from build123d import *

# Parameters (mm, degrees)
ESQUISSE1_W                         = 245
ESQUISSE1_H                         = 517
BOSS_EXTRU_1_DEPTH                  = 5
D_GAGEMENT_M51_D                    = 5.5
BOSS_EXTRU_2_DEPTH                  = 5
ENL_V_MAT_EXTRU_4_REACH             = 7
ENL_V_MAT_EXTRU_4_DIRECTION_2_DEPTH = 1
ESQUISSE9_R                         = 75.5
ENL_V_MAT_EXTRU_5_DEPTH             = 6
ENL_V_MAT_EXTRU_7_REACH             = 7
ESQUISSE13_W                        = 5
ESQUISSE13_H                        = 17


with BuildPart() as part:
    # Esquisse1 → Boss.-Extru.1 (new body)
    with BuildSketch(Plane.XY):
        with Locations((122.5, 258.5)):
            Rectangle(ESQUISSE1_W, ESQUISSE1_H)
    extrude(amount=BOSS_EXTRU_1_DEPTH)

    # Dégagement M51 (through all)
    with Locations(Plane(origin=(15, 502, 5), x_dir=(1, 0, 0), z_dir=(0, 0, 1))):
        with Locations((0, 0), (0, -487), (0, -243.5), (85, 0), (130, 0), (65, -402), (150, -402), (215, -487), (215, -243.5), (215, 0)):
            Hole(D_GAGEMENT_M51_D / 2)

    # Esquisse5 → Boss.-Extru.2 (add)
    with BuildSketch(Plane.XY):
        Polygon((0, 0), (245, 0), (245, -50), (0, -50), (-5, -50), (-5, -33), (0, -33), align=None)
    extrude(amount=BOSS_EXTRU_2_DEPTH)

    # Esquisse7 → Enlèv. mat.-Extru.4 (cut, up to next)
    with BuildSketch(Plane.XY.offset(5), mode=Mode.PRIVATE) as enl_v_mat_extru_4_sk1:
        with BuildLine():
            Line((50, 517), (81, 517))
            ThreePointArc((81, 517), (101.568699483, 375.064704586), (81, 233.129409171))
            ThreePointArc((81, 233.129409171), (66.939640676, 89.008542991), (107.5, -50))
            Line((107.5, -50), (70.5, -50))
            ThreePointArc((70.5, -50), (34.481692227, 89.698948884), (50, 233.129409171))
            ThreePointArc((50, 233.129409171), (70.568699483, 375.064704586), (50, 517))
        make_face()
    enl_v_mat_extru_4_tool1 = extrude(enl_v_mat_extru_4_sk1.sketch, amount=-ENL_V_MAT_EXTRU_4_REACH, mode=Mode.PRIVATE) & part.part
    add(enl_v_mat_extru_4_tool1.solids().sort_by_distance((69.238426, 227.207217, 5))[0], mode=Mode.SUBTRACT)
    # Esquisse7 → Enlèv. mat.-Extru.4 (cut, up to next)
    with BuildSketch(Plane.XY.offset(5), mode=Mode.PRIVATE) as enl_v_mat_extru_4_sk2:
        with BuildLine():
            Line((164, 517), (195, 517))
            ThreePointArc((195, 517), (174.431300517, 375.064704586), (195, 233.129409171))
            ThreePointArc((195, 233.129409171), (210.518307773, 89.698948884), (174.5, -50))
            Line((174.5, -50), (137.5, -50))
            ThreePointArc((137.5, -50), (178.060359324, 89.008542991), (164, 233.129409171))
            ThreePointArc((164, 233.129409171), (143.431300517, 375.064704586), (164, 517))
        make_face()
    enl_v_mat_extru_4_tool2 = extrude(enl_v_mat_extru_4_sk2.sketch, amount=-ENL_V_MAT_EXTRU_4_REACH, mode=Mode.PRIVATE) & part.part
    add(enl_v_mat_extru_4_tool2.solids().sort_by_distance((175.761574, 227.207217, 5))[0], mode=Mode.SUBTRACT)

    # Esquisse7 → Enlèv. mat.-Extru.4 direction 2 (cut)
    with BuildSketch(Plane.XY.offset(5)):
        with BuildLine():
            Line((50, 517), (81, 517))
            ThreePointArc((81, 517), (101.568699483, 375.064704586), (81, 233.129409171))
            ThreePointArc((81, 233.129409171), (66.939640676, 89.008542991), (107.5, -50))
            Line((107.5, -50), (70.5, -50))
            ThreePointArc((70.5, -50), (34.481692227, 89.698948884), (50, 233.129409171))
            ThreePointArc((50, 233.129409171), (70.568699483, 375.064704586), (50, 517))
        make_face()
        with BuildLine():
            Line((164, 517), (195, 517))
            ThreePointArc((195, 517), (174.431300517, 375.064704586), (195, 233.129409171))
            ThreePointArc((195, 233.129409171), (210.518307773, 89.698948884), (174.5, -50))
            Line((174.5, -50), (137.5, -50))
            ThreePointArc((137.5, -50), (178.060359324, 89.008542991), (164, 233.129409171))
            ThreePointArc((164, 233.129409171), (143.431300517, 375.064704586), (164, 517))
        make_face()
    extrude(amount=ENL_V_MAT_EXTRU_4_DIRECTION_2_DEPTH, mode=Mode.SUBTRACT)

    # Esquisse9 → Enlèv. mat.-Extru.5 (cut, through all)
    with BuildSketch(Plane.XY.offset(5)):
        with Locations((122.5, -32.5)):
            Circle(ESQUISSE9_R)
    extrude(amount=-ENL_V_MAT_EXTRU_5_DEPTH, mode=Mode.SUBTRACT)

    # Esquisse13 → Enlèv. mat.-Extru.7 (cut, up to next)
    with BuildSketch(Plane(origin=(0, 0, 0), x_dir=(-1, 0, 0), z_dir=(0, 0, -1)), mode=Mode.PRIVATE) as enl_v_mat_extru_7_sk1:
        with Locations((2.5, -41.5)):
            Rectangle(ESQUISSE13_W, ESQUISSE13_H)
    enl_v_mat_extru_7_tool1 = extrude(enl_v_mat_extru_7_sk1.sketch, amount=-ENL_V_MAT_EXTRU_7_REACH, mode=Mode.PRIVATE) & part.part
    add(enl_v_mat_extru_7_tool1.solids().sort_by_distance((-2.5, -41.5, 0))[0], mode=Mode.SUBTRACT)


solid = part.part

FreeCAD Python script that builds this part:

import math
import FreeCAD as App
import Part
import Sketcher


def add_polygon(sketch, points):
    """Adds a closed chain of lines whose ends are joined by coincident constraints."""
    first, n = sketch.GeometryCount, len(points)
    for a, b in zip(points, points[1:] + points[:1]):
        sketch.addGeometry(Part.LineSegment(App.Vector(*a, 0), App.Vector(*b, 0)), False)
    for i in range(n):
        sketch.addConstraint(Sketcher.Constraint("Coincident", first + i, 2, first + (i + 1) % n, 1))

doc = App.newDocument("Part")
body = doc.addObject("PartDesign::Body", "Body")
body.AllowCompound = True

# Sketch on XY plane
sketch1 = body.newObject("Sketcher::SketchObject", "Sketch")
sketch1.AttachmentSupport = (doc.getObject("XY_Plane"), [""])
sketch1.MapMode = "FlatFace"
add_polygon(sketch1, [(0, 517), (0, 0), (245, 0), (245, 517)])  # lines 0-3
sketch1.addConstraint(Sketcher.Constraint("Vertical", 0))
sketch1.addConstraint(Sketcher.Constraint("Horizontal", 1))
sketch1.addConstraint(Sketcher.Constraint("Vertical", 2))
sketch1.addConstraint(Sketcher.Constraint("Horizontal", 3))
sketch1.addConstraint(Sketcher.Constraint("Coincident", 0, 2, -1, 1))
sketch1.addConstraint(Sketcher.Constraint("DistanceX", 1, 1, 1, 2, 245.0))
sketch1.addConstraint(Sketcher.Constraint("DistanceY", 0, 2, 0, 1, 517.0))
pad1 = body.newObject("PartDesign::Pad", "Pad")
pad1.Profile = sketch1
pad1.Length = 5

# Sketch on XY plane
sketch2 = body.newObject("Sketcher::SketchObject", "Sketch001")
sketch2.AttachmentSupport = (doc.getObject("XY_Plane"), [""])
sketch2.MapMode = "FlatFace"
sketch2.AttachmentOffset = App.Placement(App.Vector(0, 0, 5), App.Rotation())
sketch2.addGeometry(Part.Circle(App.Vector(15, 502, 0), App.Vector(0, 0, 1), 2.8), False)
sketch2.addGeometry(Part.Circle(App.Vector(15, 15, 0), App.Vector(0, 0, 1), 2.8), False)
sketch2.addGeometry(Part.Circle(App.Vector(15, 258.5, 0), App.Vector(0, 0, 1), 2.8), False)
sketch2.addGeometry(Part.Circle(App.Vector(100, 502, 0), App.Vector(0, 0, 1), 2.8), False)
sketch2.addGeometry(Part.Circle(App.Vector(145, 502, 0), App.Vector(0, 0, 1), 2.8), False)
sketch2.addGeometry(Part.Circle(App.Vector(80, 100, 0), App.Vector(0, 0, 1), 2.8), False)
sketch2.addGeometry(Part.Circle(App.Vector(165, 100, 0), App.Vector(0, 0, 1), 2.8), False)
sketch2.addGeometry(Part.Circle(App.Vector(230, 15, 0), App.Vector(0, 0, 1), 2.8), False)
sketch2.addGeometry(Part.Circle(App.Vector(230, 258.5, 0), App.Vector(0, 0, 1), 2.8), False)
sketch2.addGeometry(Part.Circle(App.Vector(230, 502, 0), App.Vector(0, 0, 1), 2.8), False)
sketch2.addConstraint(Sketcher.Constraint("Equal", 0, 1))
sketch2.addConstraint(Sketcher.Constraint("Equal", 1, 2))
sketch2.addConstraint(Sketcher.Constraint("Equal", 2, 3))
sketch2.addConstraint(Sketcher.Constraint("Equal", 3, 4))
sketch2.addConstraint(Sketcher.Constraint("Equal", 4, 5))
sketch2.addConstraint(Sketcher.Constraint("Equal", 5, 6))
sketch2.addConstraint(Sketcher.Constraint("Equal", 6, 7))
sketch2.addConstraint(Sketcher.Constraint("Equal", 7, 8))
sketch2.addConstraint(Sketcher.Constraint("Equal", 8, 9))
sketch2.addConstraint(Sketcher.Constraint("Horizontal", 0, 3, 3, 3))
sketch2.addConstraint(Sketcher.Constraint("Horizontal", 3, 3, 4, 3))
sketch2.addConstraint(Sketcher.Constraint("Horizontal", 5, 3, 6, 3))
sketch2.addConstraint(Sketcher.Constraint("Horizontal", 1, 3, 7, 3))
sketch2.addConstraint(Sketcher.Constraint("Horizontal", 2, 3, 8, 3))
sketch2.addConstraint(Sketcher.Constraint("Horizontal", 4, 3, 9, 3))
sketch2.addConstraint(Sketcher.Constraint("Vertical", 0, 3, 1, 3))
sketch2.addConstraint(Sketcher.Constraint("Vertical", 1, 3, 2, 3))
sketch2.addConstraint(Sketcher.Constraint("Vertical", 7, 3, 8, 3))
sketch2.addConstraint(Sketcher.Constraint("Vertical", 8, 3, 9, 3))
sketch2.addConstraint(Sketcher.Constraint("Diameter", 0, 5.5))
sketch2.addConstraint(Sketcher.Constraint("DistanceX", -1, 1, 0, 3, 15.0))
sketch2.addConstraint(Sketcher.Constraint("DistanceY", -1, 1, 0, 3, 502.0))
sketch2.addConstraint(Sketcher.Constraint("DistanceY", -1, 1, 1, 3, 15.0))
sketch2.addConstraint(Sketcher.Constraint("DistanceX", -1, 1, 3, 3, 100.0))
sketch2.addConstraint(Sketcher.Constraint("DistanceX", -1, 1, 4, 3, 145.0))
sketch2.addConstraint(Sketcher.Constraint("DistanceX", -1, 1, 5, 3, 80.0))
sketch2.addConstraint(Sketcher.Constraint("DistanceY", -1, 1, 5, 3, 100.0))
sketch2.addConstraint(Sketcher.Constraint("DistanceX", -1, 1, 6, 3, 165.0))
sketch2.addConstraint(Sketcher.Constraint("DistanceX", -1, 1, 7, 3, 230.0))
sketch2.addConstraint(Sketcher.Constraint("DistanceY", -1, 1, 2, 3, 258.5))
doc.recompute()
hole = body.newObject("PartDesign::Hole", "Hole")
hole.Profile = sketch2
hole.ThreadType = "None"
hole.Diameter = 5.5
hole.DepthType = "ThroughAll"

# Sketch on XY plane
sketch3 = body.newObject("Sketcher::SketchObject", "Sketch002")
sketch3.AttachmentSupport = (doc.getObject("XY_Plane"), [""])
sketch3.MapMode = "FlatFace"
add_polygon(sketch3, [(245, 0), (0, 0), (0, -33), (-5, -33), (-5, -50), (245, -50)])  # lines 0-5
sketch3.addConstraint(Sketcher.Constraint("Horizontal", 0))
sketch3.addConstraint(Sketcher.Constraint("Vertical", 1))
sketch3.addConstraint(Sketcher.Constraint("Horizontal", 2))
sketch3.addConstraint(Sketcher.Constraint("Vertical", 3))
sketch3.addConstraint(Sketcher.Constraint("Horizontal", 4))
sketch3.addConstraint(Sketcher.Constraint("Vertical", 5))
sketch3.addConstraint(Sketcher.Constraint("Coincident", 0, 2, -1, 1))
sketch3.addConstraint(Sketcher.Constraint("DistanceX", 0, 2, 0, 1, 245.0))
sketch3.addConstraint(Sketcher.Constraint("DistanceX", 2, 2, 2, 1, 5.0))
sketch3.addConstraint(Sketcher.Constraint("DistanceY", 1, 2, 1, 1, 33.0))
sketch3.addConstraint(Sketcher.Constraint("DistanceY", 3, 2, 3, 1, 17.0))
pad2 = body.newObject("PartDesign::Pad", "Pad001")
pad2.Profile = sketch3
pad2.Length = 5

# Sketch on XY plane
sketch4 = body.newObject("Sketcher::SketchObject", "Sketch003")
sketch4.AttachmentSupport = (doc.getObject("XY_Plane"), [""])
sketch4.MapMode = "FlatFace"
sketch4.AttachmentOffset = App.Placement(App.Vector(0, 0, 5), App.Rotation())
sketch4.addGeometry(Part.LineSegment(App.Vector(81, 517, 0), App.Vector(50, 517, 0)), False)
sketch4.addGeometry(Part.ArcOfCircle(Part.Circle(App.Vector(-429, 375, 0), App.Vector(0, 0, 1), 500), math.radians(-16), math.radians(16)), False)
sketch4.addGeometry(Part.ArcOfCircle(Part.Circle(App.Vector(436, 119, 0), App.Vector(0, 0, 1), 403), math.radians(164), math.radians(205)), False)
sketch4.addGeometry(Part.LineSegment(App.Vector(70, -50, 0), App.Vector(108, -50, 0)), False)
sketch4.addGeometry(Part.ArcOfCircle(Part.Circle(App.Vector(447, 125, 0), App.Vector(0, 0, 1), 382), math.radians(164), math.radians(207)), False)
sketch4.addGeometry(Part.ArcOfCircle(Part.Circle(App.Vector(-398, 375, 0), App.Vector(0, 0, 1), 500), math.radians(-16), math.radians(16)), False)
sketch4.addConstraint(Sketcher.Constraint("Coincident", 0, 2, 1, 2))
sketch4.addConstraint(Sketcher.Constraint("Tangent", 1, 1, 2, 1))
sketch4.addConstraint(Sketcher.Constraint("Coincident", 2, 2, 3, 1))
sketch4.addConstraint(Sketcher.Constraint("Coincident", 3, 2, 4, 2))
sketch4.addConstraint(Sketcher.Constraint("Tangent", 4, 1, 5, 1))
sketch4.addConstraint(Sketcher.Constraint("Coincident", 5, 2, 0, 1))
sketch4.addConstraint(Sketcher.Constraint("Horizontal", 0))
sketch4.addConstraint(Sketcher.Constraint("Horizontal", 3))
sketch4.addConstraint(Sketcher.Constraint("Equal", 1, 5))
sketch4.addConstraint(Sketcher.Constraint("Horizontal", 1, 3, 5, 3))
sketch4.addConstraint(Sketcher.Constraint("Vertical", 0, 2, 1, 1))
sketch4.addConstraint(Sketcher.Constraint("Radius", 1, 500.0))
sketch4.addConstraint(Sketcher.Constraint("DistanceX", 0, 2, 0, 1, 31.0))
sketch4.addConstraint(Sketcher.Constraint("DistanceX", 3, 1, 3, 2, 37.0))
sketch4.addConstraint(Sketcher.Constraint("DistanceX", -1, 1, 0, 2, 50.0))
sketch4.addConstraint(Sketcher.Constraint("DistanceY", -1, 1, 0, 2, 517.0))
sketch4.addConstraint(Sketcher.Constraint("DistanceY", 3, 2, -1, 1, 50.0))
sketch4.addConstraint(Sketcher.Constraint("DistanceX", -1, 1, 2, 2, 70.5))
sketch4.addConstraint(Sketcher.Constraint("Radius", 4, 382.222562))
sketch4.addConstraint(Sketcher.Constraint("Radius", 2, 402.796572))
pocket1 = body.newObject("PartDesign::Pocket", "Pocket")
pocket1.Profile = sketch4
pocket1.Type = "UpToFirst"

# Sketch on XY plane
sketch5 = body.newObject("Sketcher::SketchObject", "Sketch004")
sketch5.AttachmentSupport = (doc.getObject("XY_Plane"), [""])
sketch5.MapMode = "FlatFace"
sketch5.AttachmentOffset = App.Placement(App.Vector(0, 0, 5), App.Rotation())
sketch5.addGeometry(Part.LineSegment(App.Vector(195, 517, 0), App.Vector(164, 517, 0)), False)
sketch5.addGeometry(Part.ArcOfCircle(Part.Circle(App.Vector(643, 375, 0), App.Vector(0, 0, 1), 500), math.radians(164), math.radians(196)), False)
sketch5.addGeometry(Part.ArcOfCircle(Part.Circle(App.Vector(-202, 125, 0), App.Vector(0, 0, 1), 382), math.radians(-27), math.radians(16)), False)
sketch5.addGeometry(Part.LineSegment(App.Vector(138, -50, 0), App.Vector(174, -50, 0)), False)
sketch5.addGeometry(Part.ArcOfCircle(Part.Circle(App.Vector(-191, 119, 0), App.Vector(0, 0, 1), 403), math.radians(-25), math.radians(16)), False)
sketch5.addGeometry(Part.ArcOfCircle(Part.Circle(App.Vector(674, 375, 0), App.Vector(0, 0, 1), 500), math.radians(164), math.radians(196)), False)
sketch5.addConstraint(Sketcher.Constraint("Coincident", 0, 2, 1, 1))
sketch5.addConstraint(Sketcher.Constraint("Tangent", 1, 2, 2, 2))
sketch5.addConstraint(Sketcher.Constraint("Coincident", 2, 1, 3, 1))
sketch5.addConstraint(Sketcher.Constraint("Coincident", 3, 2, 4, 1))
sketch5.addConstraint(Sketcher.Constraint("Tangent", 4, 2, 5, 2))
sketch5.addConstraint(Sketcher.Constraint("Coincident", 5, 1, 0, 1))
sketch5.addConstraint(Sketcher.Constraint("Horizontal", 0))
sketch5.addConstraint(Sketcher.Constraint("Horizontal", 3))
sketch5.addConstraint(Sketcher.Constraint("Equal", 1, 5))
sketch5.addConstraint(Sketcher.Constraint("Horizontal", 1, 3, 5, 3))
sketch5.addConstraint(Sketcher.Constraint("Vertical", 0, 2, 1, 2))
sketch5.addConstraint(Sketcher.Constraint("Radius", 1, 500.0))
sketch5.addConstraint(Sketcher.Constraint("DistanceX", 0, 2, 0, 1, 31.0))
sketch5.addConstraint(Sketcher.Constraint("DistanceX", 3, 1, 3, 2, 37.0))
sketch5.addConstraint(Sketcher.Constraint("DistanceX", -1, 1, 0, 2, 164.0))
sketch5.addConstraint(Sketcher.Constraint("DistanceY", -1, 1, 0, 2, 517.0))
sketch5.addConstraint(Sketcher.Constraint("DistanceY", 3, 2, -1, 1, 50.0))
sketch5.addConstraint(Sketcher.Constraint("DistanceX", -1, 1, 3, 2, 174.5))
sketch5.addConstraint(Sketcher.Constraint("Radius", 2, 382.222562))
sketch5.addConstraint(Sketcher.Constraint("Radius", 4, 402.796572))
pocket2 = body.newObject("PartDesign::Pocket", "Pocket001")
pocket2.Profile = sketch5
pocket2.Type = "UpToFirst"

# Sketch on XY plane
sketch6 = body.newObject("Sketcher::SketchObject", "Sketch005")
sketch6.AttachmentSupport = (doc.getObject("XY_Plane"), [""])
sketch6.MapMode = "FlatFace"
sketch6.AttachmentOffset = App.Placement(App.Vector(0, 0, 5), App.Rotation())
sketch6.addGeometry(Part.LineSegment(App.Vector(81, 517, 0), App.Vector(50, 517, 0)), False)
sketch6.addGeometry(Part.ArcOfCircle(Part.Circle(App.Vector(-429, 375, 0), App.Vector(0, 0, 1), 500), math.radians(-16), math.radians(16)), False)
sketch6.addGeometry(Part.ArcOfCircle(Part.Circle(App.Vector(436, 119, 0), App.Vector(0, 0, 1), 403), math.radians(164), math.radians(205)), False)
sketch6.addGeometry(Part.LineSegment(App.Vector(70, -50, 0), App.Vector(108, -50, 0)), False)
sketch6.addGeometry(Part.ArcOfCircle(Part.Circle(App.Vector(447, 125, 0), App.Vector(0, 0, 1), 382), math.radians(164), math.radians(207)), False)
sketch6.addGeometry(Part.ArcOfCircle(Part.Circle(App.Vector(-398, 375, 0), App.Vector(0, 0, 1), 500), math.radians(-16), math.radians(16)), False)
sketch6.addGeometry(Part.LineSegment(App.Vector(195, 517, 0), App.Vector(164, 517, 0)), False)
sketch6.addGeometry(Part.ArcOfCircle(Part.Circle(App.Vector(643, 375, 0), App.Vector(0, 0, 1), 500), math.radians(164), math.radians(196)), False)
sketch6.addGeometry(Part.ArcOfCircle(Part.Circle(App.Vector(-202, 125, 0), App.Vector(0, 0, 1), 382), math.radians(-27), math.radians(16)), False)
sketch6.addGeometry(Part.LineSegment(App.Vector(138, -50, 0), App.Vector(174, -50, 0)), False)
sketch6.addGeometry(Part.ArcOfCircle(Part.Circle(App.Vector(-191, 119, 0), App.Vector(0, 0, 1), 403), math.radians(-25), math.radians(16)), False)
sketch6.addGeometry(Part.ArcOfCircle(Part.Circle(App.Vector(674, 375, 0), App.Vector(0, 0, 1), 500), math.radians(164), math.radians(196)), False)
sketch6.addConstraint(Sketcher.Constraint("Coincident", 0, 2, 1, 2))
sketch6.addConstraint(Sketcher.Constraint("Tangent", 1, 1, 2, 1))
sketch6.addConstraint(Sketcher.Constraint("Coincident", 2, 2, 3, 1))
sketch6.addConstraint(Sketcher.Constraint("Coincident", 3, 2, 4, 2))
sketch6.addConstraint(Sketcher.Constraint("Tangent", 4, 1, 5, 1))
sketch6.addConstraint(Sketcher.Constraint("Coincident", 5, 2, 0, 1))
sketch6.addConstraint(Sketcher.Constraint("Coincident", 6, 2, 7, 1))
sketch6.addConstraint(Sketcher.Constraint("Tangent", 7, 2, 8, 2))
sketch6.addConstraint(Sketcher.Constraint("Coincident", 8, 1, 9, 1))
sketch6.addConstraint(Sketcher.Constraint("Coincident", 9, 2, 10, 1))
sketch6.addConstraint(Sketcher.Constraint("Tangent", 10, 2, 11, 2))
sketch6.addConstraint(Sketcher.Constraint("Coincident", 11, 1, 6, 1))
sketch6.addConstraint(Sketcher.Constraint("Horizontal", 0))
sketch6.addConstraint(Sketcher.Constraint("Horizontal", 3))
sketch6.addConstraint(Sketcher.Constraint("Horizontal", 6))
sketch6.addConstraint(Sketcher.Constraint("Horizontal", 9))
sketch6.addConstraint(Sketcher.Constraint("Equal", 1, 5))
sketch6.addConstraint(Sketcher.Constraint("Equal", 5, 7))
sketch6.addConstraint(Sketcher.Constraint("Equal", 4, 8))
sketch6.addConstraint(Sketcher.Constraint("Equal", 2, 10))
sketch6.addConstraint(Sketcher.Constraint("Equal", 7, 11))
sketch6.addConstraint(Sketcher.Constraint("Horizontal", 1, 3, 5, 3))
sketch6.addConstraint(Sketcher.Constraint("Horizontal", 5, 3, 7, 3))
sketch6.addConstraint(Sketcher.Constraint("Horizontal", 4, 3, 8, 3))
sketch6.addConstraint(Sketcher.Constraint("Horizontal", 2, 3, 10, 3))
sketch6.addConstraint(Sketcher.Constraint("Horizontal", 7, 3, 11, 3))
sketch6.addConstraint(Sketcher.Constraint("Horizontal", 5, 2, 6, 2))
sketch6.addConstraint(Sketcher.Constraint("Horizontal", 3, 2, 8, 1))
sketch6.addConstraint(Sketcher.Constraint("Equal", 0, 6))
sketch6.addConstraint(Sketcher.Constraint("Radius", 1, 500.0))
sketch6.addConstraint(Sketcher.Constraint("DistanceX", 0, 2, 0, 1, 31.0))
sketch6.addConstraint(Sketcher.Constraint("DistanceX", 3, 1, 3, 2, 37.0))
sketch6.addConstraint(Sketcher.Constraint("DistanceX", -1, 1, 0, 2, 50.0))
sketch6.addConstraint(Sketcher.Constraint("DistanceY", -1, 1, 0, 2, 517.0))
sketch6.addConstraint(Sketcher.Constraint("DistanceY", 3, 2, -1, 1, 50.0))
sketch6.addConstraint(Sketcher.Constraint("DistanceX", -1, 1, 6, 2, 164.0))
sketch6.addConstraint(Sketcher.Constraint("DistanceX", 3, 2, 8, 1, 30.0))
sketch6.addConstraint(Sketcher.Constraint("Radius", 4, 382.222562))
sketch6.addConstraint(Sketcher.Constraint("Radius", 2, 402.796572))
sketch6.addConstraint(Sketcher.Constraint("DistanceX", 1, 3, -1, 1, 429.431301))
pocket3 = body.newObject("PartDesign::Pocket", "Pocket002")
pocket3.Profile = sketch6
pocket3.Length = 1
pocket3.Reversed = True

# Sketch on XY plane
sketch7 = body.newObject("Sketcher::SketchObject", "Sketch006")
sketch7.AttachmentSupport = (doc.getObject("XY_Plane"), [""])
sketch7.MapMode = "FlatFace"
sketch7.AttachmentOffset = App.Placement(App.Vector(0, 0, 5), App.Rotation())
sketch7.addGeometry(Part.Circle(App.Vector(122, -32, 0), App.Vector(0, 0, 1), 76), False)
sketch7.addConstraint(Sketcher.Constraint("Diameter", 0, 151.0))
sketch7.addConstraint(Sketcher.Constraint("DistanceX", -1, 1, 0, 3, 122.5))
sketch7.addConstraint(Sketcher.Constraint("DistanceY", 0, 3, -1, 1, 32.5))
pocket4 = body.newObject("PartDesign::Pocket", "Pocket003")
pocket4.Profile = sketch7
pocket4.Type = "ThroughAll"

# Sketch on XY plane
sketch8 = body.newObject("Sketcher::SketchObject", "Sketch007")
sketch8.AttachmentSupport = (doc.getObject("XY_Plane"), [""])
sketch8.MapMode = "FlatFace"
add_polygon(sketch8, [(0, -33), (0, -50), (-5, -50), (-5, -33)])  # lines 0-3
sketch8.addConstraint(Sketcher.Constraint("Vertical", 0))
sketch8.addConstraint(Sketcher.Constraint("Horizontal", 1))
sketch8.addConstraint(Sketcher.Constraint("Vertical", 2))
sketch8.addConstraint(Sketcher.Constraint("Horizontal", 3))
sketch8.addConstraint(Sketcher.Constraint("PointOnObject", 0, 2, -2))
sketch8.addConstraint(Sketcher.Constraint("DistanceX", 1, 2, 1, 1, 5.0))
sketch8.addConstraint(Sketcher.Constraint("DistanceY", 0, 2, 0, 1, 17.0))
sketch8.addConstraint(Sketcher.Constraint("DistanceY", 0, 2, -1, 1, 50.0))
pocket5 = body.newObject("PartDesign::Pocket", "Pocket004")
pocket5.Profile = sketch8
pocket5.Type = "UpToFirst"
pocket5.Reversed = True

doc.recompute()
